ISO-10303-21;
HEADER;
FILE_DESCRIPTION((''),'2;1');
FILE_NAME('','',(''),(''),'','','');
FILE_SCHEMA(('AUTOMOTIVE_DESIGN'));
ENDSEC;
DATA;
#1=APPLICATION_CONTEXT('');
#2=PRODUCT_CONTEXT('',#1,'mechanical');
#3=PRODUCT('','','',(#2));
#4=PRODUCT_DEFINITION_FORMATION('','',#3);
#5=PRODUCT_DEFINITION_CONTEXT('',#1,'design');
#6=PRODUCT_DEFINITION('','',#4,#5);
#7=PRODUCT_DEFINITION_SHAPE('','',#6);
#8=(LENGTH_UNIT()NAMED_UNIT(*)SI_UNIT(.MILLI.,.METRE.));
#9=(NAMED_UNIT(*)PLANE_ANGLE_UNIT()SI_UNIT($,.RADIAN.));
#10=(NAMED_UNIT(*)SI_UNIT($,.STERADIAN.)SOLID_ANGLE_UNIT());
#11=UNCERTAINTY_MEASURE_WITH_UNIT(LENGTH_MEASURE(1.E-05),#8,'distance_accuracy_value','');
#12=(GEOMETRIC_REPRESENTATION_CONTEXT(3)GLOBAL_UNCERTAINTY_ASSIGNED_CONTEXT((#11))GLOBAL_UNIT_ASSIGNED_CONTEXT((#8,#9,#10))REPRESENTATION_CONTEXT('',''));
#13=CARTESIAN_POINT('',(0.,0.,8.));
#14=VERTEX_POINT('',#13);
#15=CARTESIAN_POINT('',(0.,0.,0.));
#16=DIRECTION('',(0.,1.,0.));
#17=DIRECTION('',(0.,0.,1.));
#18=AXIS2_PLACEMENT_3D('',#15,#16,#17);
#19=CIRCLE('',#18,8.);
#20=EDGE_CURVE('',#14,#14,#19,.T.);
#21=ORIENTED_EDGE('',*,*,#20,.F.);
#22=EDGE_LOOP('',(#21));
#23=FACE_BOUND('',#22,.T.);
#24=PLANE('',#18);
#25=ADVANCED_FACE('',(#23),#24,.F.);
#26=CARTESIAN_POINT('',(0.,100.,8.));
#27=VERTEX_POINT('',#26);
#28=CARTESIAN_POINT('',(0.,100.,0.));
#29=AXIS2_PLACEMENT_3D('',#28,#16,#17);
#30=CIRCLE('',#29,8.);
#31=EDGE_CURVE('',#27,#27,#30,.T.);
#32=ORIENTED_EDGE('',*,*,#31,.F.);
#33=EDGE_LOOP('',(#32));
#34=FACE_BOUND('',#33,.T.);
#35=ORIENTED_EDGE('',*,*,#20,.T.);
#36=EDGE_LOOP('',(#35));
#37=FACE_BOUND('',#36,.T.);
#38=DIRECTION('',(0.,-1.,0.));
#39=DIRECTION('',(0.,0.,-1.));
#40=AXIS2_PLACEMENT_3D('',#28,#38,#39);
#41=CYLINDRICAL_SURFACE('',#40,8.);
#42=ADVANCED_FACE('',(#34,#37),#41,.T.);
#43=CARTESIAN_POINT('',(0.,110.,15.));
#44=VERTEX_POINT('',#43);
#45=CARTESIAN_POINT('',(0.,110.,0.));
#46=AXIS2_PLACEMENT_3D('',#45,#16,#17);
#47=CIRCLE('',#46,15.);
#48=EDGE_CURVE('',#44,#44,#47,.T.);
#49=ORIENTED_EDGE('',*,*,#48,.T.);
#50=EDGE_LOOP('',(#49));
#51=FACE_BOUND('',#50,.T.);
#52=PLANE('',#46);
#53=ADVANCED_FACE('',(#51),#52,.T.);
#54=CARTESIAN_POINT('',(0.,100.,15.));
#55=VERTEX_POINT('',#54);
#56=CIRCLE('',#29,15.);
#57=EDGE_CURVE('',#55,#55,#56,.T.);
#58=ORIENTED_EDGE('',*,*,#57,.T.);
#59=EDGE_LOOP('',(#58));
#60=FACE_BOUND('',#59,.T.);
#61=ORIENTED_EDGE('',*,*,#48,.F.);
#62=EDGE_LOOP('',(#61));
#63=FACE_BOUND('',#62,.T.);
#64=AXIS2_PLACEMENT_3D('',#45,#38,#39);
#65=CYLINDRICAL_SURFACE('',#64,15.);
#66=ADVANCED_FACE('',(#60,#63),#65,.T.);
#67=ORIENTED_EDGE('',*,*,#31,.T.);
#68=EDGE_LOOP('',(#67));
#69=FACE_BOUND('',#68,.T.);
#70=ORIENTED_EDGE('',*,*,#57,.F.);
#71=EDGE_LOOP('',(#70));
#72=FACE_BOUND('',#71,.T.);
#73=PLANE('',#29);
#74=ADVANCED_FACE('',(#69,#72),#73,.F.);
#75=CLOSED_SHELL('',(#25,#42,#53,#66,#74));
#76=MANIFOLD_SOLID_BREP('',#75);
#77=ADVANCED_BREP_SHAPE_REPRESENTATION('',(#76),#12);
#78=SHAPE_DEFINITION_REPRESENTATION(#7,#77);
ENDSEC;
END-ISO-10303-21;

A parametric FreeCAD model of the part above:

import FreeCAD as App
import Part
import Sketcher

V = App.Vector

doc = App.newDocument("Part")
body = doc.addObject("PartDesign::Body", "Body")

# Sketch on XZ plane
sketch1 = doc.addObject("Sketcher::SketchObject", "Sketch")
body.addObject(sketch1)
sketch1.AttachmentSupport = (doc.XZ_Plane, [""])
sketch1.MapMode = "FlatFace"
sketch1.addGeometry(Part.Circle(V(0, 0, 0), V(0, 0, 1), 8), False)
sketch1.addConstraint([
    Sketcher.Constraint("Coincident", 0, 3, -1, 1),
    Sketcher.Constraint("Diameter", 0, 16.0),
])
pad1 = doc.addObject("PartDesign::Pad", "Pad")
body.addObject(pad1)
pad1.Profile = sketch1
pad1.Length = 100
pad1.Reversed = True

# Sketch on XZ plane
sketch2 = doc.addObject("Sketcher::SketchObject", "Sketch001")
body.addObject(sketch2)
sketch2.AttachmentSupport = (doc.XZ_Plane, [""])
sketch2.MapMode = "FlatFace"
sketch2.AttachmentOffset = App.Placement(V(0, 0, -100), App.Rotation())
sketch2.addGeometry(Part.Circle(V(0, 0, 0), V(0, 0, 1), 15), False)
sketch2.addConstraint([
    Sketcher.Constraint("Coincident", 0, 3, -1, 1),
    Sketcher.Constraint("Diameter", 0, 30.0),
])
pad2 = doc.addObject("PartDesign::Pad", "Pad001")
body.addObject(pad2)
pad2.Profile = sketch2
pad2.Length = 10
pad2.Reversed = True

doc.recompute()
